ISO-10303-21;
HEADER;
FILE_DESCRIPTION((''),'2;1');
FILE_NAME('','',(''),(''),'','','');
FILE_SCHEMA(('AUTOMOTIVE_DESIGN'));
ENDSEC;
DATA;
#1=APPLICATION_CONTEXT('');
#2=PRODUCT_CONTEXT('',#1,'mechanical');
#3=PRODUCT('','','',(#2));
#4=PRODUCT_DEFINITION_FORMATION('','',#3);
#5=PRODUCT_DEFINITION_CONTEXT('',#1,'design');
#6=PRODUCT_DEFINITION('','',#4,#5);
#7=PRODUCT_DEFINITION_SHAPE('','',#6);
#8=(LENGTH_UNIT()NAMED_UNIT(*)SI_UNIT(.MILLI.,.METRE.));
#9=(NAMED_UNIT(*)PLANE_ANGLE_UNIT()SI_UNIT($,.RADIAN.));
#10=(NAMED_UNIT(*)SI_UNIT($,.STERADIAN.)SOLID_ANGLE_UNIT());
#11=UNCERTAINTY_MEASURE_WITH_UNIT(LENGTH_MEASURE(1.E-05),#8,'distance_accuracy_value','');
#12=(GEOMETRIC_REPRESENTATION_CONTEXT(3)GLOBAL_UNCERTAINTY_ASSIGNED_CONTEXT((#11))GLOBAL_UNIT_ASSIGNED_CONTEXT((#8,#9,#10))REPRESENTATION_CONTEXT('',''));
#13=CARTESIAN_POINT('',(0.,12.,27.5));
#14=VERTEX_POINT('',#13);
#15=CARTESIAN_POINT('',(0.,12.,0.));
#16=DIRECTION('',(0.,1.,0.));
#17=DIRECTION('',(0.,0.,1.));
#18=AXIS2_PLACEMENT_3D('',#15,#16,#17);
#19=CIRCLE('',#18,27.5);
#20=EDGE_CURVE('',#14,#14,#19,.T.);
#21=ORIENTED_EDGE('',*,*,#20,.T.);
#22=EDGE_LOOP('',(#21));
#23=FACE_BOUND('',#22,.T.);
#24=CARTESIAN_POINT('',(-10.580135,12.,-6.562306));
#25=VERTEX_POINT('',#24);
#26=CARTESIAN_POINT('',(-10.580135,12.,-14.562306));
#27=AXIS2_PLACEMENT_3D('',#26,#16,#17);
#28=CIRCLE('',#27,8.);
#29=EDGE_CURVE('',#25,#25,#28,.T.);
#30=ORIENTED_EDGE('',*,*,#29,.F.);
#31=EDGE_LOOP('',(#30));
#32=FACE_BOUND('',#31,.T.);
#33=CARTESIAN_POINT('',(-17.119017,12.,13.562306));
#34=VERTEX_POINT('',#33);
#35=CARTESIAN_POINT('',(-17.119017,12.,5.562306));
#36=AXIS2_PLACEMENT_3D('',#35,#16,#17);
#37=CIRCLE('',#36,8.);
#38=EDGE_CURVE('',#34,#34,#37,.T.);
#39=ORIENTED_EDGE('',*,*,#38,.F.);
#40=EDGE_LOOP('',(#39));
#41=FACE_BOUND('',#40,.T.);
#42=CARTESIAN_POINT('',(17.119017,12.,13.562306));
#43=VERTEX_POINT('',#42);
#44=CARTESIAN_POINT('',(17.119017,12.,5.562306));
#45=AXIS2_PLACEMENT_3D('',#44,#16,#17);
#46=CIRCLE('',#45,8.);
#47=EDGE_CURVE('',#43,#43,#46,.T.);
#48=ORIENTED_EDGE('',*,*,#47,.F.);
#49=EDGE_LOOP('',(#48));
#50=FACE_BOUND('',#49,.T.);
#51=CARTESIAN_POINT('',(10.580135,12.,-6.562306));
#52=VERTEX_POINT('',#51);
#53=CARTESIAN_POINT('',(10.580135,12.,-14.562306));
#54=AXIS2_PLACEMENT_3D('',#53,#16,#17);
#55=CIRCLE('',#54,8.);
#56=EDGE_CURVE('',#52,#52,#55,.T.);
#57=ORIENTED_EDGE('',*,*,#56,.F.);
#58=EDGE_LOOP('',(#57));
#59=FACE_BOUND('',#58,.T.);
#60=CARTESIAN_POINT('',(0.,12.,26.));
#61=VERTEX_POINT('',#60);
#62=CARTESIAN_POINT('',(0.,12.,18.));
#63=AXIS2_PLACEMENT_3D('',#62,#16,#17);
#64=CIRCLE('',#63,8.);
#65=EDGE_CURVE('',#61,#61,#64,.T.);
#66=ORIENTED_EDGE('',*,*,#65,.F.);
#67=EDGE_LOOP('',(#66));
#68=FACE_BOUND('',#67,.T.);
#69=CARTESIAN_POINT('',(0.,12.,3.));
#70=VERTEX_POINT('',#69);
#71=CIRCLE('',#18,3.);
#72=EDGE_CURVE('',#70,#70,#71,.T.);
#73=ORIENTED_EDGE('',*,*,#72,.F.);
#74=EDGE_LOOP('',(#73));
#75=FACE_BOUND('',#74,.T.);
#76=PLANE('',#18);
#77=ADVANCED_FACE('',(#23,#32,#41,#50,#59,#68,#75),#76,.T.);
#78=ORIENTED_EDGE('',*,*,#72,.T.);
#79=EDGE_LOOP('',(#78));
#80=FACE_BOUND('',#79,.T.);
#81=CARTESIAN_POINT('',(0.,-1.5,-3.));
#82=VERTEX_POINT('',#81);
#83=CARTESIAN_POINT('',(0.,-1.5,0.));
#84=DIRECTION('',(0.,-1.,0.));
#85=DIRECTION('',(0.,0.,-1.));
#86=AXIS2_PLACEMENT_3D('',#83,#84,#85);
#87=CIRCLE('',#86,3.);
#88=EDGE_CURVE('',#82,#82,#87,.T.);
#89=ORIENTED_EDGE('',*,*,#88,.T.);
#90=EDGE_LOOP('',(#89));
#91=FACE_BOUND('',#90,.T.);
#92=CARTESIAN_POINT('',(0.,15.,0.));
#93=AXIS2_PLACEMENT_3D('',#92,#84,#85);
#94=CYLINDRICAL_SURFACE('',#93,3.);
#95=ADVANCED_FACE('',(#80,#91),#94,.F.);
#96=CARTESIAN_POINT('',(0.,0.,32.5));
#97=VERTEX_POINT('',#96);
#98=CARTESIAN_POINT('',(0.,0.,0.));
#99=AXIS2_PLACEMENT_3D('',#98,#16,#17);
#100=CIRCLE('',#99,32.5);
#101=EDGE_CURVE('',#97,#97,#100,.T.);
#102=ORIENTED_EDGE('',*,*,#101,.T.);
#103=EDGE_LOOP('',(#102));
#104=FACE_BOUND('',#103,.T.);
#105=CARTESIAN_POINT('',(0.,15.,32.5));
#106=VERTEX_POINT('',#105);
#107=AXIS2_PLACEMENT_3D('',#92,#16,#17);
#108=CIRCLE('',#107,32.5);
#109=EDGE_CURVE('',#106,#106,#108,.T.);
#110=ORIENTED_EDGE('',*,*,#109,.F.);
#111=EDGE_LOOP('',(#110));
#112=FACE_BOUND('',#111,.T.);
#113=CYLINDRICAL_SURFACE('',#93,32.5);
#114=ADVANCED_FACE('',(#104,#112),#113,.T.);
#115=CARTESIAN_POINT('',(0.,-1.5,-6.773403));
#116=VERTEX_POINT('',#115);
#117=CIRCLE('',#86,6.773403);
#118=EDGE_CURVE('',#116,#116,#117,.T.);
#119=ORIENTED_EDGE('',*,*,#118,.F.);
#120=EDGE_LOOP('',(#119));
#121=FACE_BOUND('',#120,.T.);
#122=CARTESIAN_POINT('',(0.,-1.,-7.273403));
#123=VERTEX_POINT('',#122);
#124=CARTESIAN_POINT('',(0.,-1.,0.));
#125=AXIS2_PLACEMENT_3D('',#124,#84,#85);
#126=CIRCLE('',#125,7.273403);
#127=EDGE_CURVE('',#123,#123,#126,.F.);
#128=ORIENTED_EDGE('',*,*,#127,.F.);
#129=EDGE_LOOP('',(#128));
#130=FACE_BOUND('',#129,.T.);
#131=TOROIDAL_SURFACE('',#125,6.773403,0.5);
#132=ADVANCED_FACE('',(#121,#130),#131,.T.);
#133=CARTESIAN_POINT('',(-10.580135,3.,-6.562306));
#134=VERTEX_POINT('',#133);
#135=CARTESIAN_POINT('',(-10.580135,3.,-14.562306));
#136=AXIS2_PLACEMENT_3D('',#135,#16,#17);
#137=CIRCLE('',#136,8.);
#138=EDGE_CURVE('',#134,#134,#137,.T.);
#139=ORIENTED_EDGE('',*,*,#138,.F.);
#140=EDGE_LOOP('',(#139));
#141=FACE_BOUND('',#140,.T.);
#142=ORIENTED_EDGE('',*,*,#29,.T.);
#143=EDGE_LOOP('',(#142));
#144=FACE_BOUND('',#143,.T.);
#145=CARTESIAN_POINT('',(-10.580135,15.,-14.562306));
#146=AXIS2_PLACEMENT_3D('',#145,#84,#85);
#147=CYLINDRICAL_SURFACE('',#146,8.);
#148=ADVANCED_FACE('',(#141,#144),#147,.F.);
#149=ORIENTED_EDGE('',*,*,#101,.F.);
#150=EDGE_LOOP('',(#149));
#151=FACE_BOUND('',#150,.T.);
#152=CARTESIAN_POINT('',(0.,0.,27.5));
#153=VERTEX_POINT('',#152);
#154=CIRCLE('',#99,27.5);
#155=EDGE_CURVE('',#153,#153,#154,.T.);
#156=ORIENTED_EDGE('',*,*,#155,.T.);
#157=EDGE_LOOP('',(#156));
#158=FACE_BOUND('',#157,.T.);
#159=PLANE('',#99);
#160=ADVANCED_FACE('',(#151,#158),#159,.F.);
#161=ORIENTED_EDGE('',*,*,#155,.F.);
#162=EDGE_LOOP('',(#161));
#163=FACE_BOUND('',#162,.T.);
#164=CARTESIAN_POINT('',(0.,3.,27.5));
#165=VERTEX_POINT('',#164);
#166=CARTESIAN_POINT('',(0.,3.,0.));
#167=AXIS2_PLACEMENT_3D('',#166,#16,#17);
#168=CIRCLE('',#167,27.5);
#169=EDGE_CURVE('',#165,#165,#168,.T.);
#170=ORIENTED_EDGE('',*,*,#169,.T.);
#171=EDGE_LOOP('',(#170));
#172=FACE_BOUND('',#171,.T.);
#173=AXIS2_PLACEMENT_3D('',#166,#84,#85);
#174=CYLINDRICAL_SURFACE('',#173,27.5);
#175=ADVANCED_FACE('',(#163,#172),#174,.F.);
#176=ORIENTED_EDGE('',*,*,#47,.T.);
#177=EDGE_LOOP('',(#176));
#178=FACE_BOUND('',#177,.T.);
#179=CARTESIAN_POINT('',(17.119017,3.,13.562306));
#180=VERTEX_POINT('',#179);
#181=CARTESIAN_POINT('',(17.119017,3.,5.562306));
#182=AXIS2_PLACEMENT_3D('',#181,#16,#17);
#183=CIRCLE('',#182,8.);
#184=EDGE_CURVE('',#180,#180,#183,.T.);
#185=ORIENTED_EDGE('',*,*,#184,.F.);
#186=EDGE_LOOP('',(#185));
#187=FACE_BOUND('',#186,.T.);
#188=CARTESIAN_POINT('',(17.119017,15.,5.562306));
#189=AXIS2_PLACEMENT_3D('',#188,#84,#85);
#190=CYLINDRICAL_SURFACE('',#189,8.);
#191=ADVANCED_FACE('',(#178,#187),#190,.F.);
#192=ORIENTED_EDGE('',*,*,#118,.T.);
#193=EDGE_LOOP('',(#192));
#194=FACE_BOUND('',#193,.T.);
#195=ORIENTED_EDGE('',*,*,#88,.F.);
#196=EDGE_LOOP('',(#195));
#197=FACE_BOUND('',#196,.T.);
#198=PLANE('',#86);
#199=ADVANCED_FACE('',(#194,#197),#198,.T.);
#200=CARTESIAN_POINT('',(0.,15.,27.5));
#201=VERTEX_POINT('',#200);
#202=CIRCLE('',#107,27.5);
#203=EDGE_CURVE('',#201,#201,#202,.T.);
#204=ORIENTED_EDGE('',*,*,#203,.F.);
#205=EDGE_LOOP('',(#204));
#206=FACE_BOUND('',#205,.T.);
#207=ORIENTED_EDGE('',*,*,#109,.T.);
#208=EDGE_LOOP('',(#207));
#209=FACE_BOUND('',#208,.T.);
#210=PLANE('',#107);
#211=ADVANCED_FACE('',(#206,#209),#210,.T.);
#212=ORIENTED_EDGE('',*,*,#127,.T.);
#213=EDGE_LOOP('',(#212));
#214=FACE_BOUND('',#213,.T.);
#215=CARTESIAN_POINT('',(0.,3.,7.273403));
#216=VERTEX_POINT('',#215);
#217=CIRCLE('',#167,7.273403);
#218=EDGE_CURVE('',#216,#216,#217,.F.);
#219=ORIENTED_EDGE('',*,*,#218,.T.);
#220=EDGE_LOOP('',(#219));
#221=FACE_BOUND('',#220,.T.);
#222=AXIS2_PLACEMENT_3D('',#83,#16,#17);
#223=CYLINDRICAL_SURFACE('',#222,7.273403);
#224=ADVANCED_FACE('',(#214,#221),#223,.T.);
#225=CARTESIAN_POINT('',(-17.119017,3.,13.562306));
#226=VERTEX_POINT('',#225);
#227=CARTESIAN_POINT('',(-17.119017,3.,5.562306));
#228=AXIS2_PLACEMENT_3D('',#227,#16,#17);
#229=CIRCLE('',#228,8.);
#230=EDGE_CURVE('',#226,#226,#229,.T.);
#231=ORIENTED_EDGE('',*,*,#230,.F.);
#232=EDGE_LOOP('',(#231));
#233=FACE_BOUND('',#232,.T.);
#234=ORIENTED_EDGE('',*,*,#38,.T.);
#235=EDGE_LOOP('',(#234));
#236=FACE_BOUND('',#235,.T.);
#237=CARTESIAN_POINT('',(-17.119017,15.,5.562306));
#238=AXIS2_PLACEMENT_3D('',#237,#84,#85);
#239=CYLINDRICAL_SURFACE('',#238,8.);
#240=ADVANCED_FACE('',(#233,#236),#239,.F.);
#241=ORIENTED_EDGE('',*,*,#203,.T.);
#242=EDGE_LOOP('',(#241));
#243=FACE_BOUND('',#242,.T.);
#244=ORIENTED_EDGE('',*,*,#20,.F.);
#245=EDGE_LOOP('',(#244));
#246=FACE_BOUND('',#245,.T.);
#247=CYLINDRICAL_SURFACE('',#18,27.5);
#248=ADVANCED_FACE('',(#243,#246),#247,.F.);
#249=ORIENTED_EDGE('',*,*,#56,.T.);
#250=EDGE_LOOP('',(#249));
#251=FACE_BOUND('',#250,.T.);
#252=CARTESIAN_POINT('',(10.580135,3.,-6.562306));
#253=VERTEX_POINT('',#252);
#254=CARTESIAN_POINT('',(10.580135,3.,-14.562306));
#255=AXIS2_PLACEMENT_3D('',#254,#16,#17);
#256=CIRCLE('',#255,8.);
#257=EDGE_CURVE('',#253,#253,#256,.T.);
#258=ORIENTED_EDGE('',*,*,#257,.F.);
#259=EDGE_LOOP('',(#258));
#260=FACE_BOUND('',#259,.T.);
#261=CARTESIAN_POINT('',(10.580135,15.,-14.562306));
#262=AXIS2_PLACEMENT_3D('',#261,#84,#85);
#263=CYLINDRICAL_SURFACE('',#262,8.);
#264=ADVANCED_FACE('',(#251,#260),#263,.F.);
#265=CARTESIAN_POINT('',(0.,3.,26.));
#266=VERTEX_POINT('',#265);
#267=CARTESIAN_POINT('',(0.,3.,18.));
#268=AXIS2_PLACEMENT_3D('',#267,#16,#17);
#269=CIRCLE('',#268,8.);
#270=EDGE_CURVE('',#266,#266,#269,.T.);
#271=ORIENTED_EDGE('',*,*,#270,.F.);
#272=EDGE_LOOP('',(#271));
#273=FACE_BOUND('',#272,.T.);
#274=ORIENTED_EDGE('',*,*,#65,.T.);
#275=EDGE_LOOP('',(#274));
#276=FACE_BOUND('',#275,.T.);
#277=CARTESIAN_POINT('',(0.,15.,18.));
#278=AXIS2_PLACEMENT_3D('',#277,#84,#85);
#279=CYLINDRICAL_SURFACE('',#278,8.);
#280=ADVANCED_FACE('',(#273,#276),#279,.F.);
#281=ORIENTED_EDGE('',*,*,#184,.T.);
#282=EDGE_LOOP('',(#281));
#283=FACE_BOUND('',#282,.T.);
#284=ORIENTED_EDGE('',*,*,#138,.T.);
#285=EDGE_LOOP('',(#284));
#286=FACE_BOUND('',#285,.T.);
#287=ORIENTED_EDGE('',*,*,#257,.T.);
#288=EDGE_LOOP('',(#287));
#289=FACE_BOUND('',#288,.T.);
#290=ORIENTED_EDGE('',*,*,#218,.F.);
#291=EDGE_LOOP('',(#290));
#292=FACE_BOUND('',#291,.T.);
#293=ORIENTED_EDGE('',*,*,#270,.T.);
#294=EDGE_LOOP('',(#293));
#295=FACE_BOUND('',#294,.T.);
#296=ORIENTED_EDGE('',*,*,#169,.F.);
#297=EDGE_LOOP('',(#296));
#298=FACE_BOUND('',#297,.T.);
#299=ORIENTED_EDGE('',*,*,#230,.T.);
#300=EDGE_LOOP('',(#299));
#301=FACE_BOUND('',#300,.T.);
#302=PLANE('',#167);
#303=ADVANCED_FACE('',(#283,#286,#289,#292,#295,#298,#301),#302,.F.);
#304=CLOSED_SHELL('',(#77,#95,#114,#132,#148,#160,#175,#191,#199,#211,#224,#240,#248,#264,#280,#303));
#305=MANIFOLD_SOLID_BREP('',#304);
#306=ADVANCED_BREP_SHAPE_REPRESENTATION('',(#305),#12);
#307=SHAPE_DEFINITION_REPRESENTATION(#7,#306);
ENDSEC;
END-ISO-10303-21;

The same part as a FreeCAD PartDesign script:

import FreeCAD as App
import Part
import Sketcher
from FreeCAD import Vector


def edges_at(feature, points):
    """Names of the edges that pass closest to the given points."""
    edges = feature.Shape.Edges
    near = lambda p: min(range(len(edges)), key=lambda i: edges[i].distToShape(Part.Vertex(*p))[0])
    return sorted({f"Edge{near(p) + 1}" for p in points})

doc = App.newDocument("Part")
body = doc.addObject("PartDesign::Body", "Body")

sketch1 = body.newObject("Sketcher::SketchObject", "Sketch")
sketch1.AttachmentSupport = (doc.getObject("XZ_Plane"), [""])
sketch1.MapMode = "FlatFace"
sketch1.addGeometry(Part.Circle(Vector(0, 0, 0), Vector(0, 0, 1), 32), False)
sketch1.addConstraint([
    Sketcher.Constraint("Coincident", 0, 3, -1, 1),
    Sketcher.Constraint("Diameter", 0, 65.0),
])
pad1 = body.newObject("PartDesign::Pad", "Pad")
pad1.Profile = sketch1
pad1.Length = 15
pad1.Reversed = True

sketch2 = body.newObject("Sketcher::SketchObject", "Sketch001")
sketch2.AttachmentSupport = (doc.getObject("XZ_Plane"), [""])
sketch2.MapMode = "FlatFace"
sketch2.AttachmentOffset = App.Placement(Vector(0, 0, -15), App.Rotation())
sketch2.addGeometry(Part.Circle(Vector(0, 0, 0), Vector(0, 0, 1), 28), False)
sketch2.addConstraint([
    Sketcher.Constraint("Coincident", 0, 3, -1, 1),
    Sketcher.Constraint("Diameter", 0, 55.0),
])
pocket1 = body.newObject("PartDesign::Pocket", "Pocket")
pocket1.Profile = sketch2
pocket1.Length = 3
pocket1.Reversed = True

sketch3 = body.newObject("Sketcher::SketchObject", "Sketch002")
sketch3.AttachmentSupport = (doc.getObject("XZ_Plane"), [""])
sketch3.MapMode = "FlatFace"
sketch3.AttachmentOffset = App.Placement(Vector(0, 0, -3), App.Rotation())
sketch3.addGeometry(Part.Circle(Vector(0, 0, 0), Vector(0, 0, 1), 28), False)
sketch3.addConstraint([
    Sketcher.Constraint("Coincident", 0, 3, -1, 1),
    Sketcher.Constraint("Diameter", 0, 55.0),
])
pocket2 = body.newObject("PartDesign::Pocket", "Pocket001")
pocket2.Profile = sketch3
pocket2.Length = 3
pocket2.Reversed = True

sketch4 = body.newObject("Sketcher::SketchObject", "Sketch003")
sketch4.AttachmentSupport = (doc.getObject("XZ_Plane"), [""])
sketch4.MapMode = "FlatFace"
sketch4.AttachmentOffset = App.Placement(Vector(0, 0, -3), App.Rotation())
sketch4.addGeometry([
    Part.Circle(Vector(0, 18, 0), Vector(0, 0, 1), 8),
    Part.Circle(Vector(17, 6, 0), Vector(0, 0, 1), 8),
    Part.Circle(Vector(11, -15, 0), Vector(0, 0, 1), 8),
    Part.Circle(Vector(-11, -15, 0), Vector(0, 0, 1), 8),
    Part.Circle(Vector(-17, 6, 0), Vector(0, 0, 1), 8),
], False)
sketch4.addConstraint([
    Sketcher.Constraint("Equal", 0, 1),
    Sketcher.Constraint("Equal", 1, 2),
    Sketcher.Constraint("Equal", 2, 3),
    Sketcher.Constraint("Equal", 3, 4),
    Sketcher.Constraint("Symmetric", 2, 3, 3, 3, -2),
    Sketcher.Constraint("Symmetric", 1, 3, 4, 3, -2),
    Sketcher.Constraint("PointOnObject", 0, 3, -2),
    Sketcher.Constraint("Diameter", 0, 16.0),
    Sketcher.Constraint("DistanceY", -1, 1, 0, 3, 18.0),
    Sketcher.Constraint("DistanceY", 2, 3, 1, 3, 20.124612),
    Sketcher.Constraint("DistanceX", 3, 3, 2, 3, 21.160269),
    Sketcher.Constraint("DistanceX", 3, 3, 1, 3, 27.699152),
    Sketcher.Constraint("DistanceY", -1, 1, 1, 3, 5.562306),
])
pocket3 = body.newObject("PartDesign::Pocket", "Pocket002")
pocket3.Profile = sketch4
pocket3.Type = "ThroughAll"
pocket3.Midplane = True

sketch5 = body.newObject("Sketcher::SketchObject", "Sketch004")
sketch5.AttachmentSupport = (doc.getObject("XZ_Plane"), [""])
sketch5.MapMode = "FlatFace"
sketch5.AttachmentOffset = App.Placement(Vector(0, 0, -3), App.Rotation())
sketch5.addGeometry(Part.Circle(Vector(0, 0, 0), Vector(0, 0, 1), 7), False)
sketch5.addConstraint([
    Sketcher.Constraint("Coincident", 0, 3, -1, 1),
    Sketcher.Constraint("Diameter", 0, 14.546806),
])
pad2 = body.newObject("PartDesign::Pad", "Pad001")
pad2.Profile = sketch5
pad2.Length = 4.5
doc.recompute()

fillet = body.newObject("PartDesign::Fillet", "Fillet")
fillet.Base = (pad2, edges_at(pad2, [(0, -1.5, -7.273)]))
fillet.Radius = 0.5

sketch6 = body.newObject("Sketcher::SketchObject", "Sketch005")
sketch6.AttachmentSupport = (doc.getObject("XZ_Plane"), [""])
sketch6.MapMode = "FlatFace"
sketch6.AttachmentOffset = App.Placement(Vector(0, 0, 1.5), App.Rotation())
sketch6.addGeometry(Part.Circle(Vector(0, 0, 0), Vector(0, 0, 1), 3), False)
sketch6.addConstraint([
    Sketcher.Constraint("Coincident", 0, 3, -1, 1),
    Sketcher.Constraint("Diameter", 0, 6.0),
])
pocket4 = body.newObject("PartDesign::Pocket", "Pocket003")
pocket4.Profile = sketch6
pocket4.Type = "ThroughAll"
pocket4.Midplane = True

doc.recompute()
